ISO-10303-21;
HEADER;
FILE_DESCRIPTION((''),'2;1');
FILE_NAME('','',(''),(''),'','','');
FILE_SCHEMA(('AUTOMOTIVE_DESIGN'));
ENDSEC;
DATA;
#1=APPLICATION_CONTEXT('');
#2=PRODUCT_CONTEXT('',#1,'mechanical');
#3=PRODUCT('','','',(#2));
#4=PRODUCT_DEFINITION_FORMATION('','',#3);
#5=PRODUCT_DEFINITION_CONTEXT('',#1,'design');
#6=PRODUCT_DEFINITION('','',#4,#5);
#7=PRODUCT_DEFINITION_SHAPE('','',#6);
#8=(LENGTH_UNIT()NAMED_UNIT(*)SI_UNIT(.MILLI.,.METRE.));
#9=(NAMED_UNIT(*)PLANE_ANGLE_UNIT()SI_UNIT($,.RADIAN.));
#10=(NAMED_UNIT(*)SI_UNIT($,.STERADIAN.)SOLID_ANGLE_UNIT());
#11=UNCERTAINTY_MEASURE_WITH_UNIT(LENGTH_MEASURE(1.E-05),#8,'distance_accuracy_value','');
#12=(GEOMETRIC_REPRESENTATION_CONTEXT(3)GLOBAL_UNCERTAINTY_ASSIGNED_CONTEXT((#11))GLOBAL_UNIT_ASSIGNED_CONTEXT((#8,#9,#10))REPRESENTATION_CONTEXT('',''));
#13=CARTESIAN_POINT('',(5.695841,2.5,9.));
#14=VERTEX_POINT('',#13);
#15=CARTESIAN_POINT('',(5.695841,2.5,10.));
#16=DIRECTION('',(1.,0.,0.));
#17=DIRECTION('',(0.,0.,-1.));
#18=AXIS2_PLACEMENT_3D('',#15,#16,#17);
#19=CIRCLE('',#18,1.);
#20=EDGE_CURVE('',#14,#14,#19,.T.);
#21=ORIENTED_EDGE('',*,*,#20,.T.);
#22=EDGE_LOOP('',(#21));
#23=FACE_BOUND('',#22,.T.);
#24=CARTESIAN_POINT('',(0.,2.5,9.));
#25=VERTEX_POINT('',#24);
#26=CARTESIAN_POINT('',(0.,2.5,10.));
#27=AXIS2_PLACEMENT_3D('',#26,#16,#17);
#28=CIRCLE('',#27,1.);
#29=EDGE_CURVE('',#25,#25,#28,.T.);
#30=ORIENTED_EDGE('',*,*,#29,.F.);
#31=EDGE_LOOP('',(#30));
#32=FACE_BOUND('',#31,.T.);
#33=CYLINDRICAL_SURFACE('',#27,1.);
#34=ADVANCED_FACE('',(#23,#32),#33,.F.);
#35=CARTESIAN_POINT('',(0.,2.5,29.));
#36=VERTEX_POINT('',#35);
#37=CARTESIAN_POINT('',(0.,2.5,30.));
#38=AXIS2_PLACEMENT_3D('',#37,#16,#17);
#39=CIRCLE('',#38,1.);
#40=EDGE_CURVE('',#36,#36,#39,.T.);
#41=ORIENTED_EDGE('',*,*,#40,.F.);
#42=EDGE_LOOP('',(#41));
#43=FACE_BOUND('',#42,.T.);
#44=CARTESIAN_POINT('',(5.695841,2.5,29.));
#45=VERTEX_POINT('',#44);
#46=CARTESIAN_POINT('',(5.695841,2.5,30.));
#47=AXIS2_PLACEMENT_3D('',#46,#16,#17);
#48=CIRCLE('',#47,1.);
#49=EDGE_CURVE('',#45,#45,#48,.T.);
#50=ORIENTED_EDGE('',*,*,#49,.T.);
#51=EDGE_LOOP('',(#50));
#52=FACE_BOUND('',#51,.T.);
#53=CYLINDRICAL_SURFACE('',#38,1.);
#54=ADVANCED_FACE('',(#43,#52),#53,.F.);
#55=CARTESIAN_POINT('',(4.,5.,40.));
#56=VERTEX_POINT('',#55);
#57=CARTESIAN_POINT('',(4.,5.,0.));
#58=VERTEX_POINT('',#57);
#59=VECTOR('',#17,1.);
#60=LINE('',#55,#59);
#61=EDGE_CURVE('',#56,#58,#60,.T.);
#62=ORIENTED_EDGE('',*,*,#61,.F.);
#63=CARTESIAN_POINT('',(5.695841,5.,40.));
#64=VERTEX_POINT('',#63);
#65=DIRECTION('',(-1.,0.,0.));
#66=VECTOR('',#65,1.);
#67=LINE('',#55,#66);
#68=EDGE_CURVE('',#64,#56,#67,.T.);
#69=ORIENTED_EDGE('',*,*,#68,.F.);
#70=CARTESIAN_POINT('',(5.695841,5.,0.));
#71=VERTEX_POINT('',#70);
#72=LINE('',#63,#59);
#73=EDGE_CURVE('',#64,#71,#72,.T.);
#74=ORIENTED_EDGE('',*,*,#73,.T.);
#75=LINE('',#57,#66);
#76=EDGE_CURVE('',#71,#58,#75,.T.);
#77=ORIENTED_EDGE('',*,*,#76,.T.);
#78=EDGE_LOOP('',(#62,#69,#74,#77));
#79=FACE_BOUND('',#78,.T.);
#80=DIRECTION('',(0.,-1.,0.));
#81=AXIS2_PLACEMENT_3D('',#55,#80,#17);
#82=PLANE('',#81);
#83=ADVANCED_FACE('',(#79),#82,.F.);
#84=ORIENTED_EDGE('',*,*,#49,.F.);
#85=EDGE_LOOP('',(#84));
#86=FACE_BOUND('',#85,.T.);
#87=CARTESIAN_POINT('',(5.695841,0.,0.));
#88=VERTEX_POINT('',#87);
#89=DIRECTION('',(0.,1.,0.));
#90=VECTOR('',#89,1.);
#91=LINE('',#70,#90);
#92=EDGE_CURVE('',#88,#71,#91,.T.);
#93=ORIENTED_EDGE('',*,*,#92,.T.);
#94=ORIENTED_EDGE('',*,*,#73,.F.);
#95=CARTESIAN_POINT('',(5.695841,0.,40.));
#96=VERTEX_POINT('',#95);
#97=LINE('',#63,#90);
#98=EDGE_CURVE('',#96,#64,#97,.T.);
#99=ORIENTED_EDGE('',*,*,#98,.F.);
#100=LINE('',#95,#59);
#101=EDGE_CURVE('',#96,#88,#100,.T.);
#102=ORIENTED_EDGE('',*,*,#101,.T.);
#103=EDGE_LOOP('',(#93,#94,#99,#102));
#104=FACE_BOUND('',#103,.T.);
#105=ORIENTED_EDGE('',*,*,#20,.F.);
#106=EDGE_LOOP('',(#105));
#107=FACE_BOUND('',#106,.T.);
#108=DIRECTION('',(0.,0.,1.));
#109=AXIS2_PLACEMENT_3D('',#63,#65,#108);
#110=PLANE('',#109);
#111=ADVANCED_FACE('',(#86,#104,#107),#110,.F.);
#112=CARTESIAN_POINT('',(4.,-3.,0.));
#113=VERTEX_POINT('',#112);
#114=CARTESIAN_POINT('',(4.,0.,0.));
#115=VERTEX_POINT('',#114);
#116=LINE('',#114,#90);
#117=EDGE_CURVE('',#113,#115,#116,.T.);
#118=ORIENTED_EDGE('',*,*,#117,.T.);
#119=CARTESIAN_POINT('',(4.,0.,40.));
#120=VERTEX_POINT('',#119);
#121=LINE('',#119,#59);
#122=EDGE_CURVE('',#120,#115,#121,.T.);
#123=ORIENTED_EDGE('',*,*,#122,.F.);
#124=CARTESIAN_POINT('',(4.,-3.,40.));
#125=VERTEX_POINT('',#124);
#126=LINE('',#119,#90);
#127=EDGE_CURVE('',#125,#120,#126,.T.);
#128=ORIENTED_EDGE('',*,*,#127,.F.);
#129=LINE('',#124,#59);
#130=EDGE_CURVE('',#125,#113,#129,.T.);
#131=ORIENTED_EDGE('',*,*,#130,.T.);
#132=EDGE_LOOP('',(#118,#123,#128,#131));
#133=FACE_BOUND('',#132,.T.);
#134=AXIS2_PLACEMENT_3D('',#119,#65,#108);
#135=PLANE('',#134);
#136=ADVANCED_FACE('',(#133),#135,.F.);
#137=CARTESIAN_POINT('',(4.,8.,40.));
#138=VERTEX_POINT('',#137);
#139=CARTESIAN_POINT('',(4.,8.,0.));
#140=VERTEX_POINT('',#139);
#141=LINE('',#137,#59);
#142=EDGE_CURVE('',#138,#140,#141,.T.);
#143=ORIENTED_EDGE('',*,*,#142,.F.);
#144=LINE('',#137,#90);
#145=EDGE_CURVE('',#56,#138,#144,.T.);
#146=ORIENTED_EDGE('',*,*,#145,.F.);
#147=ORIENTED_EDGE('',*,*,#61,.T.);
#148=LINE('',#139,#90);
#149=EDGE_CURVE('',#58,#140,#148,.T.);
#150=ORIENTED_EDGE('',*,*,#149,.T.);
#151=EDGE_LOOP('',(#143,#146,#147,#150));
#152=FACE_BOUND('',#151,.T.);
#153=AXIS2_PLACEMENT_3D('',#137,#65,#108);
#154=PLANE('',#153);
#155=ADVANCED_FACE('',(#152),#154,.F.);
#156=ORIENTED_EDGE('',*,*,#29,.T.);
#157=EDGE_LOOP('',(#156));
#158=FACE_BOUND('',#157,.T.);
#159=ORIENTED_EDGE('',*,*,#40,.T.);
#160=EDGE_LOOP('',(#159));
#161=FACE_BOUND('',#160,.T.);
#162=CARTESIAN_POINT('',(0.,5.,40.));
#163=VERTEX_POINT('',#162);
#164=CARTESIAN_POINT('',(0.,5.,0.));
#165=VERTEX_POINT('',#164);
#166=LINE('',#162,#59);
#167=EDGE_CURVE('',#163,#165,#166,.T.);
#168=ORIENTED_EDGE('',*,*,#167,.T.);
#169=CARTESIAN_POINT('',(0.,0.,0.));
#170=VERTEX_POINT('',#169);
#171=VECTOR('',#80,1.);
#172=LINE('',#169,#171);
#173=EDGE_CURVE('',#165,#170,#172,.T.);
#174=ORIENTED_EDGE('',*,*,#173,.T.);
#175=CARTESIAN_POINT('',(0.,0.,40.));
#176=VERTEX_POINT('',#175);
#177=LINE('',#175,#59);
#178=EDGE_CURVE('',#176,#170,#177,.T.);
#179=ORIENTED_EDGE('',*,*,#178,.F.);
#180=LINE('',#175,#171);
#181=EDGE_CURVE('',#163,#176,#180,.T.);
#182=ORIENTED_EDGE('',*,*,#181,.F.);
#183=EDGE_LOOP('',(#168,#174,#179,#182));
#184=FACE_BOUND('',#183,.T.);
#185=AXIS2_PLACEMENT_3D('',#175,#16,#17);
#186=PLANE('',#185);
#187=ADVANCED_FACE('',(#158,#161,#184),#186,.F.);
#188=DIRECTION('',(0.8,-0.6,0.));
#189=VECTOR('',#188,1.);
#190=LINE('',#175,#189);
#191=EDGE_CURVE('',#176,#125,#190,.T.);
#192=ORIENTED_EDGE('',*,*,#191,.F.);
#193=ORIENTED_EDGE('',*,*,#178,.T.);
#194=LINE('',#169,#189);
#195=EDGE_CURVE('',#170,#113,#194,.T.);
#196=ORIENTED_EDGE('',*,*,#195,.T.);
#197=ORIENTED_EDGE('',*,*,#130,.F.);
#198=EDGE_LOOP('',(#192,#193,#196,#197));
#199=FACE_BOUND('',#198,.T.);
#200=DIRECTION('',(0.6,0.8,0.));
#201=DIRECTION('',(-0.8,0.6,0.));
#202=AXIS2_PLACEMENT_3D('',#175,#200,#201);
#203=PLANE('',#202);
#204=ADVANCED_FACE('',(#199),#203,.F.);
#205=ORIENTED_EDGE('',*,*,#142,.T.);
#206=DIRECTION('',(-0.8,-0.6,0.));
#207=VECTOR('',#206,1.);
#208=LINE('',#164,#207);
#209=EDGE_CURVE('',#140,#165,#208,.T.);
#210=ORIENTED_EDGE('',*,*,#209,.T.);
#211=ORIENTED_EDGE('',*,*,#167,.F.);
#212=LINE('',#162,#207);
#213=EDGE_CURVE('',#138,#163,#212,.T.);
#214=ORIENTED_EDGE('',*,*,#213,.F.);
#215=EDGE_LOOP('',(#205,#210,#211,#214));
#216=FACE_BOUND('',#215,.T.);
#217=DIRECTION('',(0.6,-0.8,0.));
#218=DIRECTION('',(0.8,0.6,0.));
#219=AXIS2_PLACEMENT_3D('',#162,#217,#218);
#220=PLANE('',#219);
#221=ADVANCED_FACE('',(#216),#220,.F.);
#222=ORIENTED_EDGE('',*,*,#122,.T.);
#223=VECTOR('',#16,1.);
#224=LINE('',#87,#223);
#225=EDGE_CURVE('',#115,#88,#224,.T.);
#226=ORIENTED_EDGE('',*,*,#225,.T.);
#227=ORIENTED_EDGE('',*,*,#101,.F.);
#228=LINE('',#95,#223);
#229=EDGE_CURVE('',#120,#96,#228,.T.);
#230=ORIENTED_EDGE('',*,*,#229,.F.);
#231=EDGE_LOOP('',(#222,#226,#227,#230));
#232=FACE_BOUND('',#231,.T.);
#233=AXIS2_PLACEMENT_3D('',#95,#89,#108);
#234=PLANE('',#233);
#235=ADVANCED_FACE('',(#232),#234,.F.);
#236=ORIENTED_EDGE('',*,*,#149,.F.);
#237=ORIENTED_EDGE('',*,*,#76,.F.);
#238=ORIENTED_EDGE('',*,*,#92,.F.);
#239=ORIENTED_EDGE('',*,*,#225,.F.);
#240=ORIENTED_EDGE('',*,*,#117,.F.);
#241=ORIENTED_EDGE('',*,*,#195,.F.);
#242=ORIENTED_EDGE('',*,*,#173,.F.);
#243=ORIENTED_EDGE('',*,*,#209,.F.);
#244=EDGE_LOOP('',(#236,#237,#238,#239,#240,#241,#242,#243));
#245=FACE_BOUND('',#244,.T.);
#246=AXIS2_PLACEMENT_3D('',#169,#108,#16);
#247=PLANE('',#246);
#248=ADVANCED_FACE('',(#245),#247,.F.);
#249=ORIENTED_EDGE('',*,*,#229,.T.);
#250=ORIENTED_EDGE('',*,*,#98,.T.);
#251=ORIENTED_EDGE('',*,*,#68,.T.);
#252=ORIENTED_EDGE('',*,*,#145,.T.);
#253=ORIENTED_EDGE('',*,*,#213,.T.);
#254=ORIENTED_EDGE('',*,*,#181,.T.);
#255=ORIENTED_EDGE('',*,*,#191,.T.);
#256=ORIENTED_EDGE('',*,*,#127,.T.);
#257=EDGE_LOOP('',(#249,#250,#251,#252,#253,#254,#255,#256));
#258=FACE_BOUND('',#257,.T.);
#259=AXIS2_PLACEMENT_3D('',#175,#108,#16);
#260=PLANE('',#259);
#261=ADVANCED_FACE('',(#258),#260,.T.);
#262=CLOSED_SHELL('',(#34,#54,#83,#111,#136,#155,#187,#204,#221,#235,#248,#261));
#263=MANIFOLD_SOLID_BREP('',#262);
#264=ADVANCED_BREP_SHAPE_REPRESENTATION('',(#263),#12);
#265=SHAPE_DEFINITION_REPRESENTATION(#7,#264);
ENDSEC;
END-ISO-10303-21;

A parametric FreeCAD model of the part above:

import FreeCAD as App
import Part
import Sketcher

V = App.Vector


def add_polygon(sketch, points):
    """Adds a closed chain of lines whose ends are joined by coincident constraints."""
    first, n = sketch.GeometryCount, len(points)
    for a, b in zip(points, points[1:] + points[:1]):
        sketch.addGeometry(Part.LineSegment(App.Vector(*a, 0), App.Vector(*b, 0)), False)
    for i in range(n):
        sketch.addConstraint(Sketcher.Constraint("Coincident", first + i, 2, first + (i + 1) % n, 1))

doc = App.newDocument("Part")
body = doc.addObject("PartDesign::Body", "Body")

# Sketch on XY plane
sketch1 = doc.addObject("Sketcher::SketchObject", "Sketch")
body.addObject(sketch1)
sketch1.AttachmentSupport = (doc.XY_Plane, [""])
sketch1.MapMode = "FlatFace"
add_polygon(sketch1, [(0, 5), (0, 0), (4, -3), (4, 0), (5.695841, 0), (5.695841, 5), (4, 5), (4, 8)])  # lines 0-7
sketch1.addConstraint([
    Sketcher.Constraint("Vertical", 0),
    Sketcher.Constraint("Vertical", 2),
    Sketcher.Constraint("Horizontal", 3),
    Sketcher.Constraint("Vertical", 4),
    Sketcher.Constraint("Horizontal", 5),
    Sketcher.Constraint("Vertical", 6),
    Sketcher.Constraint("Coincident", 0, 2, -1, 1),
    Sketcher.Constraint("PointOnObject", 2, 2, -1),
    Sketcher.Constraint("Horizontal", 5, 2, 7, 2),
    Sketcher.Constraint("Vertical", 2, 2, 5, 2),
    Sketcher.Constraint("Equal", 2, 6),
    Sketcher.Constraint("DistanceY", 0, 2, 0, 1, 5.0),
    Sketcher.Constraint("DistanceY", 2, 1, 2, 2, 3.0),
    Sketcher.Constraint("Distance", 1, 5.0),
    Sketcher.Constraint("DistanceX", 3, 1, 3, 2, 1.695841),
])
pad1 = doc.addObject("PartDesign::Pad", "Pad")
body.addObject(pad1)
pad1.Profile = sketch1
pad1.Length = 40

# Sketch on YZ plane
sketch2 = doc.addObject("Sketcher::SketchObject", "Sketch001")
body.addObject(sketch2)
sketch2.AttachmentSupport = (doc.YZ_Plane, [""])
sketch2.MapMode = "FlatFace"
sketch2.AttachmentOffset = App.Placement(V(0, 0, 5.695841), App.Rotation())
sketch2.addGeometry(Part.Circle(V(2.5, 30, 0), V(0, 0, 1), 1), False)
sketch2.addConstraint([
    Sketcher.Constraint("Diameter", 0, 2.0),
    Sketcher.Constraint("DistanceY", -1, 1, 0, 3, 30.0),
    Sketcher.Constraint("DistanceX", -1, 1, 0, 3, 2.5),
])
pocket1 = doc.addObject("PartDesign::Pocket", "Pocket")
body.addObject(pocket1)
pocket1.Profile = sketch2
pocket1.Type = "ThroughAll"
doc.recompute()

linearpattern = doc.addObject("PartDesign::LinearPattern", "LinearPattern")
body.addObject(linearpattern)
linearpattern.Originals = [pocket1]
linearpattern.Direction = (doc.Z_Axis, [""])
linearpattern.Mode = "offset"
linearpattern.Offset = 20
linearpattern.Occurrences = 2
linearpattern.Reversed = True
body.Tip = linearpattern

doc.recompute()
